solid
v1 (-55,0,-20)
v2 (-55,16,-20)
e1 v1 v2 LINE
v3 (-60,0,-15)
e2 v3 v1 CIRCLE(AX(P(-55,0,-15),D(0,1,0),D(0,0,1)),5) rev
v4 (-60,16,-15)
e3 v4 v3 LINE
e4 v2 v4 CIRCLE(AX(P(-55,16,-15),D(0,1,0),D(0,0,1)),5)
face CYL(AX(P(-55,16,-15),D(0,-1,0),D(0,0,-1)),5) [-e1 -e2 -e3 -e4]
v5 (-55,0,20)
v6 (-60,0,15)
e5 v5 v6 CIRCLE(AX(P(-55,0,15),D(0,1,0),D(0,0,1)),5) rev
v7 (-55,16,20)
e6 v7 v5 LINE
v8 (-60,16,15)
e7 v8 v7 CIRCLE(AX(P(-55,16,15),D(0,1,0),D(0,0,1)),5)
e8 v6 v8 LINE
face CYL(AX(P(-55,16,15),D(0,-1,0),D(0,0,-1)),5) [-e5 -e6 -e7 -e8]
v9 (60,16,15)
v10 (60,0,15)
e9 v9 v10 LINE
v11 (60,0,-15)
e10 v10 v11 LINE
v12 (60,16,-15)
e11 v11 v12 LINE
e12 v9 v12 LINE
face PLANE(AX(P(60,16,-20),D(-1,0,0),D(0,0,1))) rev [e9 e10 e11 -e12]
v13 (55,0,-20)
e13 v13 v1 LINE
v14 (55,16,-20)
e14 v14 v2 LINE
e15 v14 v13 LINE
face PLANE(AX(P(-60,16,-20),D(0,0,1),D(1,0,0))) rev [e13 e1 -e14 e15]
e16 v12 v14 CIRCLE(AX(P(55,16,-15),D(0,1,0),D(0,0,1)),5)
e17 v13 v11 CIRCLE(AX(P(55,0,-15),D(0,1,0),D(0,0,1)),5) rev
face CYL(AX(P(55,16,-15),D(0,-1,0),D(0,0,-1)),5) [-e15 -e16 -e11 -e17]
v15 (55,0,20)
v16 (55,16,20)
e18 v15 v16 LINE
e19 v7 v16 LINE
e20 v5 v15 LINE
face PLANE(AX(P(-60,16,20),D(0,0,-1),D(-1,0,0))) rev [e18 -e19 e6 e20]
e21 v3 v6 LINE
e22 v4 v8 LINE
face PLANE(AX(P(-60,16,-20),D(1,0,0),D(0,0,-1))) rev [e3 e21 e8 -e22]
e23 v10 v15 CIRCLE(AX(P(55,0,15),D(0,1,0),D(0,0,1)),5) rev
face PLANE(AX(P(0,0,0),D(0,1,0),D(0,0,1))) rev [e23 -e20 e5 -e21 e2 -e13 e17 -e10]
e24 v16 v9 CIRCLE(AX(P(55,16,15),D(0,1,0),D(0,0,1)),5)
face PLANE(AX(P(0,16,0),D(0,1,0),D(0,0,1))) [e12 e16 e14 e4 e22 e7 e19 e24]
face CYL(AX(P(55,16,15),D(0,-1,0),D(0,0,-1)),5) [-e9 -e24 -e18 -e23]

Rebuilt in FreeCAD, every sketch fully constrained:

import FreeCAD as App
import Part
import Sketcher


def edges_at(feature, points):
    """Names of the edges that pass closest to the given points."""
    edges = feature.Shape.Edges
    near = lambda p: min(range(len(edges)), key=lambda i: edges[i].distToShape(Part.Vertex(*p))[0])
    return sorted({f"Edge{near(p) + 1}" for p in points})

doc = App.newDocument("Part")
body = doc.addObject("PartDesign::Body", "Body")

sketch1 = body.newObject("Sketcher::SketchObject", "Sketch")
sketch1.AttachmentSupport = (doc.getObject("XZ_Plane"), [""])
sketch1.MapMode = "FlatFace"
sketch1.addGeometry(Part.LineSegment(App.Vector(-60, -20, 0), App.Vector(-60, 20, 0)), False)
sketch1.addGeometry(Part.LineSegment(App.Vector(-60, 20, 0), App.Vector(60, 20, 0)), False)
sketch1.addGeometry(Part.LineSegment(App.Vector(60, 20, 0), App.Vector(60, -20, 0)), False)
sketch1.addGeometry(Part.LineSegment(App.Vector(60, -20, 0), App.Vector(-60, -20, 0)), False)
sketch1.addConstraint(Sketcher.Constraint("Coincident", 0, 2, 1, 1))
sketch1.addConstraint(Sketcher.Constraint("Coincident", 1, 2, 2, 1))
sketch1.addConstraint(Sketcher.Constraint("Coincident", 2, 2, 3, 1))
sketch1.addConstraint(Sketcher.Constraint("Coincident", 3, 2, 0, 1))
sketch1.addConstraint(Sketcher.Constraint("Vertical", 0))
sketch1.addConstraint(Sketcher.Constraint("Horizontal", 1))
sketch1.addConstraint(Sketcher.Constraint("Vertical", 2))
sketch1.addConstraint(Sketcher.Constraint("Horizontal", 3))
sketch1.addConstraint(Sketcher.Constraint("Symmetric", 0, 2, 2, 2, -1, 1))
sketch1.addConstraint(Sketcher.Constraint("DistanceX", 1, 1, 1, 2, 120.0))
sketch1.addConstraint(Sketcher.Constraint("DistanceY", 0, 1, 0, 2, 40.0))
pad1 = body.newObject("PartDesign::Pad", "Pad")
pad1.Profile = sketch1
pad1.Length = 16
pad1.Reversed = True
doc.recompute()

fillet = body.newObject("PartDesign::Fillet", "Fillet")
fillet.Base = (pad1, edges_at(pad1, [
    (60, 8, 20),
    (-60, 8, 20),
    (-60, 8, -20),
    (60, 8, -20),
]))
fillet.Radius = 5

doc.recompute()
